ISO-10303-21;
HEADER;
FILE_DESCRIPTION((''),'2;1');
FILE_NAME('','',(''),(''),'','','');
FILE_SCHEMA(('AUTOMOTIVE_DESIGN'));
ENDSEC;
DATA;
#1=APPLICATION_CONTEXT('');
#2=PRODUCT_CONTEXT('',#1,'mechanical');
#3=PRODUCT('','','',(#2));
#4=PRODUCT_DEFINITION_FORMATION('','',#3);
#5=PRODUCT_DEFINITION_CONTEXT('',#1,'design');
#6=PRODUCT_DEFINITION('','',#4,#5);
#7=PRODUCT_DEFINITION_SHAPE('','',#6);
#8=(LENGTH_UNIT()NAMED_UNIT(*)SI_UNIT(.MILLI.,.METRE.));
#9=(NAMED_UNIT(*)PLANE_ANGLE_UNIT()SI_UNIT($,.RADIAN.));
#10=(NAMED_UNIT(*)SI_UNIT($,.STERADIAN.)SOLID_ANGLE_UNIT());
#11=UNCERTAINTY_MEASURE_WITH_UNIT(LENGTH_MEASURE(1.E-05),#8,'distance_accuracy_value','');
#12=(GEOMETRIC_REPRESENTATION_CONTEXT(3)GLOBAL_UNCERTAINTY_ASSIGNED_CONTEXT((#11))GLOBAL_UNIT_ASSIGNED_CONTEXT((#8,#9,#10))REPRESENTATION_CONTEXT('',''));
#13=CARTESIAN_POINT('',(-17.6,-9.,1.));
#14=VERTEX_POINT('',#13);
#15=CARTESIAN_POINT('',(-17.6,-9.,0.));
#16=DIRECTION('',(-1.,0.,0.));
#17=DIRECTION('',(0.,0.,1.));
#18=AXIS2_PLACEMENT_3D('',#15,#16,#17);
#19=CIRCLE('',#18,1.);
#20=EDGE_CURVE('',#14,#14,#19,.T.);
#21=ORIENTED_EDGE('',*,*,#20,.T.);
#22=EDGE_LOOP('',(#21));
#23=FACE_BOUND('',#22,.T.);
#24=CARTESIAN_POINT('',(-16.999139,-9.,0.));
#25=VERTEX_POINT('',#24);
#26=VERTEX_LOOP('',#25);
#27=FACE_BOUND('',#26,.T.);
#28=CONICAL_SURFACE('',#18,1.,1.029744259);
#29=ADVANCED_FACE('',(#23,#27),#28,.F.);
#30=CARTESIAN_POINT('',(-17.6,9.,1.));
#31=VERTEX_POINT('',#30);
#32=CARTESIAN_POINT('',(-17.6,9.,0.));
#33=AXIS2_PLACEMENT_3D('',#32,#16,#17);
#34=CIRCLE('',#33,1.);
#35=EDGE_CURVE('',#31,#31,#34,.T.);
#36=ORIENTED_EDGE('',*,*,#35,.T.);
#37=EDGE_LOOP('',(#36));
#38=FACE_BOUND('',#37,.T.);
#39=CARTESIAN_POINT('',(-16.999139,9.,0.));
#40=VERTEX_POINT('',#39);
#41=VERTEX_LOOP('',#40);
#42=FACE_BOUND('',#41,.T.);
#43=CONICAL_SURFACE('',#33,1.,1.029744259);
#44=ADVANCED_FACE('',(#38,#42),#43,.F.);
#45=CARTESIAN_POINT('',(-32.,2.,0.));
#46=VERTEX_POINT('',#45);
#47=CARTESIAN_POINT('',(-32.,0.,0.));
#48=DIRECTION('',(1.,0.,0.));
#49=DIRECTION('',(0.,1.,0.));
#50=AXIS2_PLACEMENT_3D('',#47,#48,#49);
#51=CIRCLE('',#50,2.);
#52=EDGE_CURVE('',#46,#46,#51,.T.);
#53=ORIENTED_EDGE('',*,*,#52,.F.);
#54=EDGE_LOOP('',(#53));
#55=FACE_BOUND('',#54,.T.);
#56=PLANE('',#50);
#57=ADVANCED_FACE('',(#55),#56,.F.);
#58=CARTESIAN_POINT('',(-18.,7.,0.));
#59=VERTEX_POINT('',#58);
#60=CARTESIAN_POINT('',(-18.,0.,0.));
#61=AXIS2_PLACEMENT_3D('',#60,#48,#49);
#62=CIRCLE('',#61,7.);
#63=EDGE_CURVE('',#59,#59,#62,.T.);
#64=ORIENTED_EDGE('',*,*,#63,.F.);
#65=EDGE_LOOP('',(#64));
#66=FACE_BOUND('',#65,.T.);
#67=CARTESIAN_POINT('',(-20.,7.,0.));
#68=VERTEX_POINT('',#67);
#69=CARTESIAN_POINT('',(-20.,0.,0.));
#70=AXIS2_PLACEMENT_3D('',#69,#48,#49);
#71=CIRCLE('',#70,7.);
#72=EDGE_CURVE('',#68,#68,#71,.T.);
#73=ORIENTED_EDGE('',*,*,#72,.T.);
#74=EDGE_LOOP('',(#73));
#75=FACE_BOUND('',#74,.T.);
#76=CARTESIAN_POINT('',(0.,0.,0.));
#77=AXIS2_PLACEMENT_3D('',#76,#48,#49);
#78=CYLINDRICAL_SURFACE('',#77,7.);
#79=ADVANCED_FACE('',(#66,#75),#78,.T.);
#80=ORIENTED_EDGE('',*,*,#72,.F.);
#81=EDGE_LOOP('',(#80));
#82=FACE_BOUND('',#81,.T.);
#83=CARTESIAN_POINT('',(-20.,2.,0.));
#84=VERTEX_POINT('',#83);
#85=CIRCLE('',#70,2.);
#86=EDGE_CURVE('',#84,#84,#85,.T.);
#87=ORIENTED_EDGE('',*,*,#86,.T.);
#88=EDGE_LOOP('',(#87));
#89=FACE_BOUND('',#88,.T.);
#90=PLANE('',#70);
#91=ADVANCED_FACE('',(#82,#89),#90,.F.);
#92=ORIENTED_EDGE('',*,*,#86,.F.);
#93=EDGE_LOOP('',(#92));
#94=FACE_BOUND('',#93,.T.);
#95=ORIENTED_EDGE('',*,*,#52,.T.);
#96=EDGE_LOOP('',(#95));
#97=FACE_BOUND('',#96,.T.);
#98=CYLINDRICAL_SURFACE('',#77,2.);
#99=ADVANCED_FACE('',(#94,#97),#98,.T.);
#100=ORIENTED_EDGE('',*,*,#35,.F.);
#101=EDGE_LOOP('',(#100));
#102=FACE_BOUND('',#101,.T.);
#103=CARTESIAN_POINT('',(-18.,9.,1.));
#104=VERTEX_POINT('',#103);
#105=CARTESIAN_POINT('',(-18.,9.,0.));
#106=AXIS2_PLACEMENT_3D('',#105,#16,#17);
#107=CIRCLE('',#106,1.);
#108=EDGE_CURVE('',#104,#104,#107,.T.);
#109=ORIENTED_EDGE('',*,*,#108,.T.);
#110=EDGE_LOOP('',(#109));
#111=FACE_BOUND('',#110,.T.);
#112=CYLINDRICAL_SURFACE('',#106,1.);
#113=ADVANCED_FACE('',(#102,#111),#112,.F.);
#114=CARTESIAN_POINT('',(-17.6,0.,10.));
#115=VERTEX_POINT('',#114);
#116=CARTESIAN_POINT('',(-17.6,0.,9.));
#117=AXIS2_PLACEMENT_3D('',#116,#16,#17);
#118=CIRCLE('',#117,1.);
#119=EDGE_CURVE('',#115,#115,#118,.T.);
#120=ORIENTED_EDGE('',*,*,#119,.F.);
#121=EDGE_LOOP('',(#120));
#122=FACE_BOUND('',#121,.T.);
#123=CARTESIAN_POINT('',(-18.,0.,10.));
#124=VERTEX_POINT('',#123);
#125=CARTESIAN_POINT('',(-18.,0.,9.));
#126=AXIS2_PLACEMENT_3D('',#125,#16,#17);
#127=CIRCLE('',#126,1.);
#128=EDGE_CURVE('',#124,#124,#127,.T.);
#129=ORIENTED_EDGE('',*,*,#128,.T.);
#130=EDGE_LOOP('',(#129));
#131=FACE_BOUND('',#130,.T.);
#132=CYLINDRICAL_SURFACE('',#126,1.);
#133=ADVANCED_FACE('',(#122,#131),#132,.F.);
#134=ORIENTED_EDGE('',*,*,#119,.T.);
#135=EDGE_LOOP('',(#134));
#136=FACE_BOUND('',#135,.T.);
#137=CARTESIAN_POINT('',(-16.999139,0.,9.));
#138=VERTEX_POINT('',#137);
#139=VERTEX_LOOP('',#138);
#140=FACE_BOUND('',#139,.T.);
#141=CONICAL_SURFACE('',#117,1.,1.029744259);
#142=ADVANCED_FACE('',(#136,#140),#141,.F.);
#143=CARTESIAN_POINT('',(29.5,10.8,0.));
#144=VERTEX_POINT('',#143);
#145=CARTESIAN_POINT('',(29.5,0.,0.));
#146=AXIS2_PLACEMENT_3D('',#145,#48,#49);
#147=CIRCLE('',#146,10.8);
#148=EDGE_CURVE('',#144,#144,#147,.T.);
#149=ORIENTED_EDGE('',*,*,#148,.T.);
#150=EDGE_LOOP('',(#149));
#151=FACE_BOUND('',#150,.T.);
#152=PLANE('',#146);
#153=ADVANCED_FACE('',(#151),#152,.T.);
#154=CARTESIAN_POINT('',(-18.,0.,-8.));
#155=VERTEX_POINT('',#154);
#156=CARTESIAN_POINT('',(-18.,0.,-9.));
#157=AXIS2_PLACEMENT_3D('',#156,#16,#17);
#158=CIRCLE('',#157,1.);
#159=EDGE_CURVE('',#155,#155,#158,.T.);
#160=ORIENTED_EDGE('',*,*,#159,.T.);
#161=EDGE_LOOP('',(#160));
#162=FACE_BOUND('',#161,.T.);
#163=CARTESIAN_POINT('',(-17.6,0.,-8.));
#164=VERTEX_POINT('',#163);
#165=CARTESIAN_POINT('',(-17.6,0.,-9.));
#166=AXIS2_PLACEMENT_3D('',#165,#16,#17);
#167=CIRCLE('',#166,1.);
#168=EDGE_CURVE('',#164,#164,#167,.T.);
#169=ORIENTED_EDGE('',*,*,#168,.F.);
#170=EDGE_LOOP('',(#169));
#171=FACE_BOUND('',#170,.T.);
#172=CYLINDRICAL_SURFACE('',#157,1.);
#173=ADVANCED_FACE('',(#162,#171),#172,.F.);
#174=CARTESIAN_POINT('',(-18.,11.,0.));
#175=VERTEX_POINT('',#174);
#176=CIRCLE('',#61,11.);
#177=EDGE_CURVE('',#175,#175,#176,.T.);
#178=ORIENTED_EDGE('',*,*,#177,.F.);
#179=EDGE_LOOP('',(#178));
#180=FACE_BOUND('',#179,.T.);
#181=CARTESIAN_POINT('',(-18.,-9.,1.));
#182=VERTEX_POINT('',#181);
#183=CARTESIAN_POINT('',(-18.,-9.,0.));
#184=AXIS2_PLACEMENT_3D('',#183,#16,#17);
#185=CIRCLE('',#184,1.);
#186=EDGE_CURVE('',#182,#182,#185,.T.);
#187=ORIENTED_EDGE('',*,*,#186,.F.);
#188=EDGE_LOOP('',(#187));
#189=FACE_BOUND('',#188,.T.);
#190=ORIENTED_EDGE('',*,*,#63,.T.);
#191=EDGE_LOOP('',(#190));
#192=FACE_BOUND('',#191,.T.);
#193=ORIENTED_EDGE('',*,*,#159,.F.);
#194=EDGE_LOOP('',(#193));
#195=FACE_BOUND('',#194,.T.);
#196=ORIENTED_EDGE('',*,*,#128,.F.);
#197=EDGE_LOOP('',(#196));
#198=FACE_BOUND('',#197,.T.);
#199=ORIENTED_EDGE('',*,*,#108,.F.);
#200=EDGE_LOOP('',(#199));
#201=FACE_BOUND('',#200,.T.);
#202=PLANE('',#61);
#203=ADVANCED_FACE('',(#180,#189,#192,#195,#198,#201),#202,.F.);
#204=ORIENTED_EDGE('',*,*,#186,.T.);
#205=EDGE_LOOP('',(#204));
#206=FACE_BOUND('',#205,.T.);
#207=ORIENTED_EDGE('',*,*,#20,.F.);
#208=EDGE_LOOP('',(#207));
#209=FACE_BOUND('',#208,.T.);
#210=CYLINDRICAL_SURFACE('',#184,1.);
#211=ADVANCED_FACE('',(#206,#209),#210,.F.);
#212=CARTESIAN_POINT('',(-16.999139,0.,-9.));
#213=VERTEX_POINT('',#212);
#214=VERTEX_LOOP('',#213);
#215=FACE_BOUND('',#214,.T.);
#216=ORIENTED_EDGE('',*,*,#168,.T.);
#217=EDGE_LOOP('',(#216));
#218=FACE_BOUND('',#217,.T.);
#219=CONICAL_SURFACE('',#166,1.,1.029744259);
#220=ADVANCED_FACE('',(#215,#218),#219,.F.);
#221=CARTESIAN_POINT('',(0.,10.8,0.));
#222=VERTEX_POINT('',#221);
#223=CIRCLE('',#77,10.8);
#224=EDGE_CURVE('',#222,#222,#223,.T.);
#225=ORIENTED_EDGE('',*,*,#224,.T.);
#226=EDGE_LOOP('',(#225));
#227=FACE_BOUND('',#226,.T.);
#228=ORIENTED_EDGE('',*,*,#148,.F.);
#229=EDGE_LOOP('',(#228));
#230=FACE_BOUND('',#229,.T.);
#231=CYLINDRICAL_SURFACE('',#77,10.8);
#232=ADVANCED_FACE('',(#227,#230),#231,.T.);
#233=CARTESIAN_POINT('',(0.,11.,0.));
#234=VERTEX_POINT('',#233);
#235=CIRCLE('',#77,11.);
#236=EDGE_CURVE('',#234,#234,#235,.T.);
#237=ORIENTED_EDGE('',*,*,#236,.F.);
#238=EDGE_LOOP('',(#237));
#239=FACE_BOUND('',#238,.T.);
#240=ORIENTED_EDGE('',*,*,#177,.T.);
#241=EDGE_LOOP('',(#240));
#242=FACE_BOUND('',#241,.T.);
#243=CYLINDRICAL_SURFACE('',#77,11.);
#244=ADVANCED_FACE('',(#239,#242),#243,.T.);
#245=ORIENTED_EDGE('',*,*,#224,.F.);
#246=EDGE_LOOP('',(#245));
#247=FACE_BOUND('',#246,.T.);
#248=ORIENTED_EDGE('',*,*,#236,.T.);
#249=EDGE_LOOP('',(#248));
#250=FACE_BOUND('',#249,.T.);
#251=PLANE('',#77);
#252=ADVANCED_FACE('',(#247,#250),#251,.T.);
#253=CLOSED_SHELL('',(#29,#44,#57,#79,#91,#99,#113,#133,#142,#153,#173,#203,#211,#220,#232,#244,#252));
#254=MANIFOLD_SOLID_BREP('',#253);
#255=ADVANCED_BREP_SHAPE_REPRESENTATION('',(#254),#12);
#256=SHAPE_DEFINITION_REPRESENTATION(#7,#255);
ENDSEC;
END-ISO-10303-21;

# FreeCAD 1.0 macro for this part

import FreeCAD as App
import Part
import Sketcher


def add_polygon(sketch, points):
    """Adds a closed chain of lines whose ends are joined by coincident constraints."""
    first, n = sketch.GeometryCount, len(points)
    for a, b in zip(points, points[1:] + points[:1]):
        sketch.addGeometry(Part.LineSegment(App.Vector(*a, 0), App.Vector(*b, 0)), False)
    for i in range(n):
        sketch.addConstraint(Sketcher.Constraint("Coincident", first + i, 2, first + (i + 1) % n, 1))

doc = App.newDocument("Part")
body = doc.addObject("PartDesign::Body", "Body")

# Sketch on XY plane
sketch1 = body.newObject("Sketcher::SketchObject", "Sketch")
sketch1.AttachmentSupport = (doc.getObject("XY_Plane"), [""])
sketch1.MapMode = "FlatFace"
add_polygon(sketch1, [(-18, -7), (-18, -11), (0, -11), (0, -10.8), (29.5, -10.8), (29.5, 0), (-32, 0), (-32, -2), (-20, -2), (-20, -7)])  # lines 0-9
sketch1.addConstraint([
    Sketcher.Constraint("Vertical", 0),
    Sketcher.Constraint("Horizontal", 1),
    Sketcher.Constraint("Vertical", 2),
    Sketcher.Constraint("Horizontal", 3),
    Sketcher.Constraint("Vertical", 4),
    Sketcher.Constraint("Horizontal", 5),
    Sketcher.Constraint("Vertical", 6),
    Sketcher.Constraint("Horizontal", 7),
    Sketcher.Constraint("Vertical", 8),
    Sketcher.Constraint("Horizontal", 9),
    Sketcher.Constraint("PointOnObject", 1, 2, -2),
    Sketcher.Constraint("PointOnObject", 4, 2, -1),
    Sketcher.Constraint("Equal", 9, 6),
    Sketcher.Constraint("DistanceX", 1, 1, 1, 2, 18.0),
    Sketcher.Constraint("DistanceX", 7, 1, 7, 2, 12.0),
    Sketcher.Constraint("DistanceX", 9, 1, 9, 2, 2.0),
    Sketcher.Constraint("DistanceY", 0, 2, 0, 1, 4.0),
    Sketcher.Constraint("DistanceY", 8, 2, 8, 1, 5.0),
    Sketcher.Constraint("DistanceX", 3, 1, 3, 2, 29.5),
    Sketcher.Constraint("DistanceY", 2, 1, 2, 2, 0.2),
])
revolution = body.newObject("PartDesign::Revolution", "Revolution")
revolution.Profile = sketch1
revolution.ReferenceAxis = (sketch1, ["H_Axis"])
revolution.Angle = 360

# Sketch on YZ plane
sketch2 = body.newObject("Sketcher::SketchObject", "Sketch001")
sketch2.AttachmentSupport = (doc.getObject("YZ_Plane"), [""])
sketch2.MapMode = "FlatFace"
sketch2.AttachmentOffset = App.Placement(App.Vector(0, 0, -18), App.Rotation())
sketch2.addGeometry([
    Part.Circle(App.Vector(0, -9, 0), App.Vector(0, 0, 1), 1),
    Part.Circle(App.Vector(9, 0, 0), App.Vector(0, 0, 1), 1),
    Part.Circle(App.Vector(0, 9, 0), App.Vector(0, 0, 1), 1),
    Part.Circle(App.Vector(-9, 0, 0), App.Vector(0, 0, 1), 1),
], False)
sketch2.addConstraint([
    Sketcher.Constraint("Equal", 0, 1),
    Sketcher.Constraint("Equal", 1, 2),
    Sketcher.Constraint("Equal", 2, 3),
    Sketcher.Constraint("Symmetric", 0, 3, 2, 3, -1, 1),
    Sketcher.Constraint("Symmetric", 1, 3, 3, 3, -1, 1),
    Sketcher.Constraint("PointOnObject", 0, 3, -2),
    Sketcher.Constraint("PointOnObject", 1, 3, -1),
    Sketcher.Constraint("Diameter", 0, 2.0),
    Sketcher.Constraint("DistanceY", 0, 3, -1, 1, 9.0),
    Sketcher.Constraint("DistanceX", -1, 1, 1, 3, 9.0),
])
doc.recompute()
hole = body.newObject("PartDesign::Hole", "Hole")
hole.Profile = sketch2
hole.ThreadType = "None"
hole.Diameter = 2
hole.DepthType = "Dimension"
hole.Depth = 0.4
hole.DrillPoint = "Angled"
hole.DrillPointAngle = 118
hole.Reversed = True

doc.recompute()
